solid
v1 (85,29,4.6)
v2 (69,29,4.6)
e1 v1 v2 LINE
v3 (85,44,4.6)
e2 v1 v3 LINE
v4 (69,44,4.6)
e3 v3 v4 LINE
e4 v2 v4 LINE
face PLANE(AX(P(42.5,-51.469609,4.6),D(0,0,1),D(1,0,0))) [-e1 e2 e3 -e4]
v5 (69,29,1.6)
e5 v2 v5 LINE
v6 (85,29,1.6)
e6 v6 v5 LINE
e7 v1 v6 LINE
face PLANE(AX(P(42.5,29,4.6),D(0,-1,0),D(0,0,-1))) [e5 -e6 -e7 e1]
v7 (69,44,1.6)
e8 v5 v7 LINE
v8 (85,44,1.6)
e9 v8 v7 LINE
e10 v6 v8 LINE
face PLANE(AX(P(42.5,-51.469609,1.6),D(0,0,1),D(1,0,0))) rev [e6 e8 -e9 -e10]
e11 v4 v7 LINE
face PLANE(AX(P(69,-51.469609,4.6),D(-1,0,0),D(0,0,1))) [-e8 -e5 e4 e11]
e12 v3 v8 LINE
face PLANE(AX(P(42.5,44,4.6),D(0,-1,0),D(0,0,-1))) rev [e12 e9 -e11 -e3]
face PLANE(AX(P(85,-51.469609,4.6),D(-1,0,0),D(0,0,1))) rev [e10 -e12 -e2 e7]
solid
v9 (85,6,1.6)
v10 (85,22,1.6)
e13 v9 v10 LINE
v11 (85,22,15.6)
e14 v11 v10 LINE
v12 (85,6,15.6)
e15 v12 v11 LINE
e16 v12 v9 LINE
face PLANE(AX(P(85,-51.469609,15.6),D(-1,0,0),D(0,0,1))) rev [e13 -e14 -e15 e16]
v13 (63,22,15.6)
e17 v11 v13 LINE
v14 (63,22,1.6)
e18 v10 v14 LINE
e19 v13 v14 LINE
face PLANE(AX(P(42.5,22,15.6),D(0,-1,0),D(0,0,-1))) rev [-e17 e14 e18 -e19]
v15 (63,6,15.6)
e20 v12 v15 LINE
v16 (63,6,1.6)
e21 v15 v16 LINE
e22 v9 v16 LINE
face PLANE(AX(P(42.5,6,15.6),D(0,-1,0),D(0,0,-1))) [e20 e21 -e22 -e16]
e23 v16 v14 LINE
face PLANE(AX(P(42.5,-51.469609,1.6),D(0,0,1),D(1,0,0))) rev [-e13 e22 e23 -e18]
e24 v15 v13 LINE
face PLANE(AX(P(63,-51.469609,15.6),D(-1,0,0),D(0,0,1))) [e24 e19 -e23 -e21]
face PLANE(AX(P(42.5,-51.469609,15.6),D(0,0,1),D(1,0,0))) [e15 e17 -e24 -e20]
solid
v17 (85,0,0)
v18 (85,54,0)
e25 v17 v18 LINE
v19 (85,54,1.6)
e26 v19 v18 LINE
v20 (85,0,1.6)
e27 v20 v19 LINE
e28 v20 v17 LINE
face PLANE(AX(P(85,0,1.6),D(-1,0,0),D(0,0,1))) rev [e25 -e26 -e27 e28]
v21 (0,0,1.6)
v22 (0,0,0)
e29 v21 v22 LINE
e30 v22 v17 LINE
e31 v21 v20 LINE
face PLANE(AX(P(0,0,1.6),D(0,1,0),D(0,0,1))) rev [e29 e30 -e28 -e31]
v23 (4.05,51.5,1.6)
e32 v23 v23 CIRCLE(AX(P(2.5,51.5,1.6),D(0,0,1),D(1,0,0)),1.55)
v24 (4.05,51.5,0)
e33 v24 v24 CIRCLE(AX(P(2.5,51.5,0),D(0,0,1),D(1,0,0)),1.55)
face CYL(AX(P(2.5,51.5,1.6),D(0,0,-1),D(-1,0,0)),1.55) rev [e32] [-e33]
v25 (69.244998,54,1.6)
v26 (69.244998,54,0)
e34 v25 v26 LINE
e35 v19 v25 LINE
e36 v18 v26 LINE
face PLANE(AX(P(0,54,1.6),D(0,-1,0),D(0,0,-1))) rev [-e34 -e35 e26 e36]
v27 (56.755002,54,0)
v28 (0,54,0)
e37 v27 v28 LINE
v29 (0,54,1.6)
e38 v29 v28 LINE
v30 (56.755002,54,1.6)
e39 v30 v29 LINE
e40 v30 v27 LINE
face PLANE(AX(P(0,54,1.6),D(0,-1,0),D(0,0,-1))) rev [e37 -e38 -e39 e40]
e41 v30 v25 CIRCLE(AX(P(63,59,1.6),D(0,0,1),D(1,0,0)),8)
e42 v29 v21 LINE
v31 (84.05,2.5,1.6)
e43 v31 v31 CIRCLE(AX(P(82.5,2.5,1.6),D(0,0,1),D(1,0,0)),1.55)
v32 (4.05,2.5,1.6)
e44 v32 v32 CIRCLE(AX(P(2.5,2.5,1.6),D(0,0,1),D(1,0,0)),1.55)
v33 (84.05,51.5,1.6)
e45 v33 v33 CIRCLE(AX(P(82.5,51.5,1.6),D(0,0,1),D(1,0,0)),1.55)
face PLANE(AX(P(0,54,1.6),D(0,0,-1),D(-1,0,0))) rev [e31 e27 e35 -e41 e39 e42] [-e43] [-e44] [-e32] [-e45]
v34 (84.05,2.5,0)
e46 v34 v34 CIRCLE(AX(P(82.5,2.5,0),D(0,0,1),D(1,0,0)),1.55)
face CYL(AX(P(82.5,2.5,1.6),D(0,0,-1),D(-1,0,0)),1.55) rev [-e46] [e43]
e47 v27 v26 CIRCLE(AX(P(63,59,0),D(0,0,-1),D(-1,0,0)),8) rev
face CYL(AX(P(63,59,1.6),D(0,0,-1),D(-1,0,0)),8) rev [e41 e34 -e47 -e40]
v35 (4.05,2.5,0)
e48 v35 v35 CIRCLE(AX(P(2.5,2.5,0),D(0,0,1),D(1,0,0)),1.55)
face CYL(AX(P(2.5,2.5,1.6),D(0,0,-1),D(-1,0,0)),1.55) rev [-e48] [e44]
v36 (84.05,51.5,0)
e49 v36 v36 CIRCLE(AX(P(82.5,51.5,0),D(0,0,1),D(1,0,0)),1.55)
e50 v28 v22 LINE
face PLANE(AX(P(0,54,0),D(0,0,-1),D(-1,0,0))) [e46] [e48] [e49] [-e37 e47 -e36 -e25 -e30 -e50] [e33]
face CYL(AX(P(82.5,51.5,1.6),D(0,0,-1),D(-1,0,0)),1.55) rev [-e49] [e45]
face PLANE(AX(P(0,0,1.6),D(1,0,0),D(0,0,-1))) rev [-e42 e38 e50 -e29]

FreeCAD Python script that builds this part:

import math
import FreeCAD as App
import Part
import Sketcher
from FreeCAD import Vector
Q = App.Units.Quantity

doc = App.newDocument("Part")
body = doc.addObject("PartDesign::Body", "Body")

# Sketch on XY plane
sketch1 = body.newObject("Sketcher::SketchObject", "Sketch")
sketch1.AttachmentSupport = (doc.getObject("XY_Plane"), [""])
sketch1.MapMode = "FlatFace"
sketch1.addGeometry(Part.LineSegment(Vector(0, 54, 0), Vector(0, 0, 0)), False)
sketch1.addGeometry(Part.LineSegment(Vector(0, 0, 0), Vector(85, 0, 0)), False)
sketch1.addGeometry(Part.LineSegment(Vector(85, 0, 0), Vector(85, 54, 0)), False)
sketch1.addGeometry(Part.LineSegment(Vector(85, 54, 0), Vector(0, 54, 0)), False)
sketch1.addGeometry(Part.Circle(Vector(2.5, 2.5, 0), Vector(0, 0, 1), 1.55), False)
sketch1.addGeometry(Part.Circle(Vector(82.5, 2.5, 0), Vector(0, 0, 1), 1.55), False)
sketch1.addGeometry(Part.Circle(Vector(2.5, 51.5, 0), Vector(0, 0, 1), 1.55), False)
sketch1.addGeometry(Part.Circle(Vector(82.5, 51.5, 0), Vector(0, 0, 1), 1.55), False)
sketch1.addConstraint(Sketcher.Constraint("Coincident", 0, 2, 1, 1))
sketch1.addConstraint(Sketcher.Constraint("Coincident", 1, 2, 2, 1))
sketch1.addConstraint(Sketcher.Constraint("Coincident", 2, 2, 3, 1))
sketch1.addConstraint(Sketcher.Constraint("Coincident", 3, 2, 0, 1))
sketch1.addConstraint(Sketcher.Constraint("Vertical", 0))
sketch1.addConstraint(Sketcher.Constraint("Horizontal", 1))
sketch1.addConstraint(Sketcher.Constraint("Vertical", 2))
sketch1.addConstraint(Sketcher.Constraint("Horizontal", 3))
sketch1.addConstraint(Sketcher.Constraint("Coincident", 0, 2, -1, 1))
sketch1.addConstraint(Sketcher.Constraint("Equal", 4, 5))
sketch1.addConstraint(Sketcher.Constraint("Equal", 5, 6))
sketch1.addConstraint(Sketcher.Constraint("Equal", 6, 7))
sketch1.addConstraint(Sketcher.Constraint("Horizontal", 4, 3, 5, 3))
sketch1.addConstraint(Sketcher.Constraint("Horizontal", 6, 3, 7, 3))
sketch1.addConstraint(Sketcher.Constraint("Vertical", 4, 3, 6, 3))
sketch1.addConstraint(Sketcher.Constraint("Vertical", 5, 3, 7, 3))
sketch1.addConstraint(Sketcher.Constraint("Diameter", 4, Q("3.1 mm")))
sketch1.addConstraint(Sketcher.Constraint("DistanceX", 1, 1, 1, 2, Q("85 mm")))
sketch1.addConstraint(Sketcher.Constraint("DistanceY", 0, 2, 0, 1, Q("54 mm")))
sketch1.addConstraint(Sketcher.Constraint("DistanceX", 4, 3, 5, 3, Q("80 mm")))
sketch1.addConstraint(Sketcher.Constraint("DistanceY", 4, 3, 6, 3, Q("49 mm")))
sketch1.addConstraint(Sketcher.Constraint("DistanceX", -1, 1, 4, 3, Q("2.5 mm")))
sketch1.addConstraint(Sketcher.Constraint("DistanceY", -1, 1, 4, 3, Q("2.5 mm")))
pad1 = body.newObject("PartDesign::Pad", "Pad")
pad1.Profile = sketch1
pad1.Length = 1.6

# Sketch on XY plane
sketch2 = body.newObject("Sketcher::SketchObject", "Sketch001")
sketch2.AttachmentSupport = (doc.getObject("XY_Plane"), [""])
sketch2.MapMode = "FlatFace"
sketch2.AttachmentOffset = App.Placement(Vector(0, 0, 1.6), App.Rotation())
sketch2.addGeometry(Part.LineSegment(Vector(-59.259446, 198.901999, 0), Vector(56.755002, 54, 0)), False)
sketch2.addGeometry(Part.ArcOfCircle(Part.Circle(Vector(63, 59, 0), Vector(0, 0, 1), 8), math.radians(-141.317813), math.radians(-38.682187)), False)
sketch2.addGeometry(Part.LineSegment(Vector(69.244998, 54, 0), Vector(185.259446, 198.901999, 0)), False)
sketch2.addGeometry(Part.LineSegment(Vector(185.259446, 198.901999, 0), Vector(185.259446, 570.148231, 0)), False)
sketch2.addGeometry(Part.LineSegment(Vector(185.259446, 570.148231, 0), Vector(-59.259446, 570.148231, 0)), False)
sketch2.addGeometry(Part.LineSegment(Vector(-59.259446, 570.148231, 0), Vector(-59.259446, 198.901999, 0)), False)
sketch2.addConstraint(Sketcher.Constraint("Tangent", 0, 2, 1, 1))
sketch2.addConstraint(Sketcher.Constraint("Tangent", 1, 2, 2, 1))
sketch2.addConstraint(Sketcher.Constraint("Coincident", 2, 2, 3, 1))
sketch2.addConstraint(Sketcher.Constraint("Coincident", 3, 2, 4, 1))
sketch2.addConstraint(Sketcher.Constraint("Coincident", 4, 2, 5, 1))
sketch2.addConstraint(Sketcher.Constraint("Coincident", 5, 2, 0, 1))
sketch2.addConstraint(Sketcher.Constraint("Vertical", 3))
sketch2.addConstraint(Sketcher.Constraint("Horizontal", 4))
sketch2.addConstraint(Sketcher.Constraint("Vertical", 5))
sketch2.addConstraint(Sketcher.Constraint("Horizontal", 0, 2, 1, 2))
sketch2.addConstraint(Sketcher.Constraint("Horizontal", 2, 2, 5, 2))
sketch2.addConstraint(Sketcher.Constraint("Radius", 1, Q("8 mm")))
sketch2.addConstraint(Sketcher.Constraint("DistanceX", -1, 1, 1, 3, Q("63 mm")))
sketch2.addConstraint(Sketcher.Constraint("DistanceY", -1, 1, 1, 3, Q("59 mm")))
sketch2.addConstraint(Sketcher.Constraint("DistanceY", -1, 1, 0, 2, Q("54 mm")))
sketch2.addConstraint(Sketcher.Constraint("DistanceY", -1, 1, 2, 2, Q("198.901999 mm")))
sketch2.addConstraint(Sketcher.Constraint("DistanceY", 3, 1, 3, 2, Q("371.246233 mm")))
pocket1 = body.newObject("PartDesign::Pocket", "Pocket")
pocket1.Profile = sketch2
pocket1.Type = "ThroughAll"
body2 = doc.addObject("PartDesign::Body", "Body001")

# Sketch on XY plane
sketch3 = body2.newObject("Sketcher::SketchObject", "Sketch002")
sketch3.AttachmentSupport = (doc.getObject("XY_Plane001"), [""])
sketch3.MapMode = "FlatFace"
sketch3.AttachmentOffset = App.Placement(Vector(0, 0, 1.6), App.Rotation())
sketch3.addGeometry(Part.LineSegment(Vector(85, 22, 0), Vector(85, 6, 0)), False)
sketch3.addGeometry(Part.LineSegment(Vector(85, 6, 0), Vector(63, 6, 0)), False)
sketch3.addGeometry(Part.LineSegment(Vector(63, 6, 0), Vector(63, 22, 0)), False)
sketch3.addGeometry(Part.LineSegment(Vector(63, 22, 0), Vector(85, 22, 0)), False)
sketch3.addConstraint(Sketcher.Constraint("Coincident", 0, 2, 1, 1))
sketch3.addConstraint(Sketcher.Constraint("Coincident", 1, 2, 2, 1))
sketch3.addConstraint(Sketcher.Constraint("Coincident", 2, 2, 3, 1))
sketch3.addConstraint(Sketcher.Constraint("Coincident", 3, 2, 0, 1))
sketch3.addConstraint(Sketcher.Constraint("Vertical", 0))
sketch3.addConstraint(Sketcher.Constraint("Horizontal", 1))
sketch3.addConstraint(Sketcher.Constraint("Vertical", 2))
sketch3.addConstraint(Sketcher.Constraint("Horizontal", 3))
sketch3.addConstraint(Sketcher.Constraint("DistanceX", 1, 2, 1, 1, Q("22 mm")))
sketch3.addConstraint(Sketcher.Constraint("DistanceY", 0, 2, 0, 1, Q("16 mm")))
sketch3.addConstraint(Sketcher.Constraint("DistanceX", -1, 1, 0, 2, Q("85 mm")))
sketch3.addConstraint(Sketcher.Constraint("DistanceY", -1, 1, 0, 2, Q("6 mm")))
pad2 = body2.newObject("PartDesign::Pad", "Pad001")
pad2.Profile = sketch3
pad2.Length = 14
body3 = doc.addObject("PartDesign::Body", "Body002")

# Sketch on XY plane
sketch4 = body3.newObject("Sketcher::SketchObject", "Sketch003")
sketch4.AttachmentSupport = (doc.getObject("XY_Plane002"), [""])
sketch4.MapMode = "FlatFace"
sketch4.AttachmentOffset = App.Placement(Vector(0, 0, 1.6), App.Rotation())
sketch4.addGeometry(Part.LineSegment(Vector(85, 44, 0), Vector(85, 29, 0)), False)
sketch4.addGeometry(Part.LineSegment(Vector(85, 29, 0), Vector(69, 29, 0)), False)
sketch4.addGeometry(Part.LineSegment(Vector(69, 29, 0), Vector(69, 44, 0)), False)
sketch4.addGeometry(Part.LineSegment(Vector(69, 44, 0), Vector(85, 44, 0)), False)
sketch4.addConstraint(Sketcher.Constraint("Coincident", 0, 2, 1, 1))
sketch4.addConstraint(Sketcher.Constraint("Coincident", 1, 2, 2, 1))
sketch4.addConstraint(Sketcher.Constraint("Coincident", 2, 2, 3, 1))
sketch4.addConstraint(Sketcher.Constraint("Coincident", 3, 2, 0, 1))
sketch4.addConstraint(Sketcher.Constraint("Vertical", 0))
sketch4.addConstraint(Sketcher.Constraint("Horizontal", 1))
sketch4.addConstraint(Sketcher.Constraint("Vertical", 2))
sketch4.addConstraint(Sketcher.Constraint("Horizontal", 3))
sketch4.addConstraint(Sketcher.Constraint("DistanceX", 1, 2, 1, 1, Q("16 mm")))
sketch4.addConstraint(Sketcher.Constraint("DistanceY", 0, 2, 0, 1, Q("15 mm")))
sketch4.addConstraint(Sketcher.Constraint("DistanceX", -1, 1, 0, 2, Q("85 mm")))
sketch4.addConstraint(Sketcher.Constraint("DistanceY", -1, 1, 0, 2, Q("29 mm")))
pad3 = body3.newObject("PartDesign::Pad", "Pad002")
pad3.Profile = sketch4
pad3.Length = 3

doc.recompute()
